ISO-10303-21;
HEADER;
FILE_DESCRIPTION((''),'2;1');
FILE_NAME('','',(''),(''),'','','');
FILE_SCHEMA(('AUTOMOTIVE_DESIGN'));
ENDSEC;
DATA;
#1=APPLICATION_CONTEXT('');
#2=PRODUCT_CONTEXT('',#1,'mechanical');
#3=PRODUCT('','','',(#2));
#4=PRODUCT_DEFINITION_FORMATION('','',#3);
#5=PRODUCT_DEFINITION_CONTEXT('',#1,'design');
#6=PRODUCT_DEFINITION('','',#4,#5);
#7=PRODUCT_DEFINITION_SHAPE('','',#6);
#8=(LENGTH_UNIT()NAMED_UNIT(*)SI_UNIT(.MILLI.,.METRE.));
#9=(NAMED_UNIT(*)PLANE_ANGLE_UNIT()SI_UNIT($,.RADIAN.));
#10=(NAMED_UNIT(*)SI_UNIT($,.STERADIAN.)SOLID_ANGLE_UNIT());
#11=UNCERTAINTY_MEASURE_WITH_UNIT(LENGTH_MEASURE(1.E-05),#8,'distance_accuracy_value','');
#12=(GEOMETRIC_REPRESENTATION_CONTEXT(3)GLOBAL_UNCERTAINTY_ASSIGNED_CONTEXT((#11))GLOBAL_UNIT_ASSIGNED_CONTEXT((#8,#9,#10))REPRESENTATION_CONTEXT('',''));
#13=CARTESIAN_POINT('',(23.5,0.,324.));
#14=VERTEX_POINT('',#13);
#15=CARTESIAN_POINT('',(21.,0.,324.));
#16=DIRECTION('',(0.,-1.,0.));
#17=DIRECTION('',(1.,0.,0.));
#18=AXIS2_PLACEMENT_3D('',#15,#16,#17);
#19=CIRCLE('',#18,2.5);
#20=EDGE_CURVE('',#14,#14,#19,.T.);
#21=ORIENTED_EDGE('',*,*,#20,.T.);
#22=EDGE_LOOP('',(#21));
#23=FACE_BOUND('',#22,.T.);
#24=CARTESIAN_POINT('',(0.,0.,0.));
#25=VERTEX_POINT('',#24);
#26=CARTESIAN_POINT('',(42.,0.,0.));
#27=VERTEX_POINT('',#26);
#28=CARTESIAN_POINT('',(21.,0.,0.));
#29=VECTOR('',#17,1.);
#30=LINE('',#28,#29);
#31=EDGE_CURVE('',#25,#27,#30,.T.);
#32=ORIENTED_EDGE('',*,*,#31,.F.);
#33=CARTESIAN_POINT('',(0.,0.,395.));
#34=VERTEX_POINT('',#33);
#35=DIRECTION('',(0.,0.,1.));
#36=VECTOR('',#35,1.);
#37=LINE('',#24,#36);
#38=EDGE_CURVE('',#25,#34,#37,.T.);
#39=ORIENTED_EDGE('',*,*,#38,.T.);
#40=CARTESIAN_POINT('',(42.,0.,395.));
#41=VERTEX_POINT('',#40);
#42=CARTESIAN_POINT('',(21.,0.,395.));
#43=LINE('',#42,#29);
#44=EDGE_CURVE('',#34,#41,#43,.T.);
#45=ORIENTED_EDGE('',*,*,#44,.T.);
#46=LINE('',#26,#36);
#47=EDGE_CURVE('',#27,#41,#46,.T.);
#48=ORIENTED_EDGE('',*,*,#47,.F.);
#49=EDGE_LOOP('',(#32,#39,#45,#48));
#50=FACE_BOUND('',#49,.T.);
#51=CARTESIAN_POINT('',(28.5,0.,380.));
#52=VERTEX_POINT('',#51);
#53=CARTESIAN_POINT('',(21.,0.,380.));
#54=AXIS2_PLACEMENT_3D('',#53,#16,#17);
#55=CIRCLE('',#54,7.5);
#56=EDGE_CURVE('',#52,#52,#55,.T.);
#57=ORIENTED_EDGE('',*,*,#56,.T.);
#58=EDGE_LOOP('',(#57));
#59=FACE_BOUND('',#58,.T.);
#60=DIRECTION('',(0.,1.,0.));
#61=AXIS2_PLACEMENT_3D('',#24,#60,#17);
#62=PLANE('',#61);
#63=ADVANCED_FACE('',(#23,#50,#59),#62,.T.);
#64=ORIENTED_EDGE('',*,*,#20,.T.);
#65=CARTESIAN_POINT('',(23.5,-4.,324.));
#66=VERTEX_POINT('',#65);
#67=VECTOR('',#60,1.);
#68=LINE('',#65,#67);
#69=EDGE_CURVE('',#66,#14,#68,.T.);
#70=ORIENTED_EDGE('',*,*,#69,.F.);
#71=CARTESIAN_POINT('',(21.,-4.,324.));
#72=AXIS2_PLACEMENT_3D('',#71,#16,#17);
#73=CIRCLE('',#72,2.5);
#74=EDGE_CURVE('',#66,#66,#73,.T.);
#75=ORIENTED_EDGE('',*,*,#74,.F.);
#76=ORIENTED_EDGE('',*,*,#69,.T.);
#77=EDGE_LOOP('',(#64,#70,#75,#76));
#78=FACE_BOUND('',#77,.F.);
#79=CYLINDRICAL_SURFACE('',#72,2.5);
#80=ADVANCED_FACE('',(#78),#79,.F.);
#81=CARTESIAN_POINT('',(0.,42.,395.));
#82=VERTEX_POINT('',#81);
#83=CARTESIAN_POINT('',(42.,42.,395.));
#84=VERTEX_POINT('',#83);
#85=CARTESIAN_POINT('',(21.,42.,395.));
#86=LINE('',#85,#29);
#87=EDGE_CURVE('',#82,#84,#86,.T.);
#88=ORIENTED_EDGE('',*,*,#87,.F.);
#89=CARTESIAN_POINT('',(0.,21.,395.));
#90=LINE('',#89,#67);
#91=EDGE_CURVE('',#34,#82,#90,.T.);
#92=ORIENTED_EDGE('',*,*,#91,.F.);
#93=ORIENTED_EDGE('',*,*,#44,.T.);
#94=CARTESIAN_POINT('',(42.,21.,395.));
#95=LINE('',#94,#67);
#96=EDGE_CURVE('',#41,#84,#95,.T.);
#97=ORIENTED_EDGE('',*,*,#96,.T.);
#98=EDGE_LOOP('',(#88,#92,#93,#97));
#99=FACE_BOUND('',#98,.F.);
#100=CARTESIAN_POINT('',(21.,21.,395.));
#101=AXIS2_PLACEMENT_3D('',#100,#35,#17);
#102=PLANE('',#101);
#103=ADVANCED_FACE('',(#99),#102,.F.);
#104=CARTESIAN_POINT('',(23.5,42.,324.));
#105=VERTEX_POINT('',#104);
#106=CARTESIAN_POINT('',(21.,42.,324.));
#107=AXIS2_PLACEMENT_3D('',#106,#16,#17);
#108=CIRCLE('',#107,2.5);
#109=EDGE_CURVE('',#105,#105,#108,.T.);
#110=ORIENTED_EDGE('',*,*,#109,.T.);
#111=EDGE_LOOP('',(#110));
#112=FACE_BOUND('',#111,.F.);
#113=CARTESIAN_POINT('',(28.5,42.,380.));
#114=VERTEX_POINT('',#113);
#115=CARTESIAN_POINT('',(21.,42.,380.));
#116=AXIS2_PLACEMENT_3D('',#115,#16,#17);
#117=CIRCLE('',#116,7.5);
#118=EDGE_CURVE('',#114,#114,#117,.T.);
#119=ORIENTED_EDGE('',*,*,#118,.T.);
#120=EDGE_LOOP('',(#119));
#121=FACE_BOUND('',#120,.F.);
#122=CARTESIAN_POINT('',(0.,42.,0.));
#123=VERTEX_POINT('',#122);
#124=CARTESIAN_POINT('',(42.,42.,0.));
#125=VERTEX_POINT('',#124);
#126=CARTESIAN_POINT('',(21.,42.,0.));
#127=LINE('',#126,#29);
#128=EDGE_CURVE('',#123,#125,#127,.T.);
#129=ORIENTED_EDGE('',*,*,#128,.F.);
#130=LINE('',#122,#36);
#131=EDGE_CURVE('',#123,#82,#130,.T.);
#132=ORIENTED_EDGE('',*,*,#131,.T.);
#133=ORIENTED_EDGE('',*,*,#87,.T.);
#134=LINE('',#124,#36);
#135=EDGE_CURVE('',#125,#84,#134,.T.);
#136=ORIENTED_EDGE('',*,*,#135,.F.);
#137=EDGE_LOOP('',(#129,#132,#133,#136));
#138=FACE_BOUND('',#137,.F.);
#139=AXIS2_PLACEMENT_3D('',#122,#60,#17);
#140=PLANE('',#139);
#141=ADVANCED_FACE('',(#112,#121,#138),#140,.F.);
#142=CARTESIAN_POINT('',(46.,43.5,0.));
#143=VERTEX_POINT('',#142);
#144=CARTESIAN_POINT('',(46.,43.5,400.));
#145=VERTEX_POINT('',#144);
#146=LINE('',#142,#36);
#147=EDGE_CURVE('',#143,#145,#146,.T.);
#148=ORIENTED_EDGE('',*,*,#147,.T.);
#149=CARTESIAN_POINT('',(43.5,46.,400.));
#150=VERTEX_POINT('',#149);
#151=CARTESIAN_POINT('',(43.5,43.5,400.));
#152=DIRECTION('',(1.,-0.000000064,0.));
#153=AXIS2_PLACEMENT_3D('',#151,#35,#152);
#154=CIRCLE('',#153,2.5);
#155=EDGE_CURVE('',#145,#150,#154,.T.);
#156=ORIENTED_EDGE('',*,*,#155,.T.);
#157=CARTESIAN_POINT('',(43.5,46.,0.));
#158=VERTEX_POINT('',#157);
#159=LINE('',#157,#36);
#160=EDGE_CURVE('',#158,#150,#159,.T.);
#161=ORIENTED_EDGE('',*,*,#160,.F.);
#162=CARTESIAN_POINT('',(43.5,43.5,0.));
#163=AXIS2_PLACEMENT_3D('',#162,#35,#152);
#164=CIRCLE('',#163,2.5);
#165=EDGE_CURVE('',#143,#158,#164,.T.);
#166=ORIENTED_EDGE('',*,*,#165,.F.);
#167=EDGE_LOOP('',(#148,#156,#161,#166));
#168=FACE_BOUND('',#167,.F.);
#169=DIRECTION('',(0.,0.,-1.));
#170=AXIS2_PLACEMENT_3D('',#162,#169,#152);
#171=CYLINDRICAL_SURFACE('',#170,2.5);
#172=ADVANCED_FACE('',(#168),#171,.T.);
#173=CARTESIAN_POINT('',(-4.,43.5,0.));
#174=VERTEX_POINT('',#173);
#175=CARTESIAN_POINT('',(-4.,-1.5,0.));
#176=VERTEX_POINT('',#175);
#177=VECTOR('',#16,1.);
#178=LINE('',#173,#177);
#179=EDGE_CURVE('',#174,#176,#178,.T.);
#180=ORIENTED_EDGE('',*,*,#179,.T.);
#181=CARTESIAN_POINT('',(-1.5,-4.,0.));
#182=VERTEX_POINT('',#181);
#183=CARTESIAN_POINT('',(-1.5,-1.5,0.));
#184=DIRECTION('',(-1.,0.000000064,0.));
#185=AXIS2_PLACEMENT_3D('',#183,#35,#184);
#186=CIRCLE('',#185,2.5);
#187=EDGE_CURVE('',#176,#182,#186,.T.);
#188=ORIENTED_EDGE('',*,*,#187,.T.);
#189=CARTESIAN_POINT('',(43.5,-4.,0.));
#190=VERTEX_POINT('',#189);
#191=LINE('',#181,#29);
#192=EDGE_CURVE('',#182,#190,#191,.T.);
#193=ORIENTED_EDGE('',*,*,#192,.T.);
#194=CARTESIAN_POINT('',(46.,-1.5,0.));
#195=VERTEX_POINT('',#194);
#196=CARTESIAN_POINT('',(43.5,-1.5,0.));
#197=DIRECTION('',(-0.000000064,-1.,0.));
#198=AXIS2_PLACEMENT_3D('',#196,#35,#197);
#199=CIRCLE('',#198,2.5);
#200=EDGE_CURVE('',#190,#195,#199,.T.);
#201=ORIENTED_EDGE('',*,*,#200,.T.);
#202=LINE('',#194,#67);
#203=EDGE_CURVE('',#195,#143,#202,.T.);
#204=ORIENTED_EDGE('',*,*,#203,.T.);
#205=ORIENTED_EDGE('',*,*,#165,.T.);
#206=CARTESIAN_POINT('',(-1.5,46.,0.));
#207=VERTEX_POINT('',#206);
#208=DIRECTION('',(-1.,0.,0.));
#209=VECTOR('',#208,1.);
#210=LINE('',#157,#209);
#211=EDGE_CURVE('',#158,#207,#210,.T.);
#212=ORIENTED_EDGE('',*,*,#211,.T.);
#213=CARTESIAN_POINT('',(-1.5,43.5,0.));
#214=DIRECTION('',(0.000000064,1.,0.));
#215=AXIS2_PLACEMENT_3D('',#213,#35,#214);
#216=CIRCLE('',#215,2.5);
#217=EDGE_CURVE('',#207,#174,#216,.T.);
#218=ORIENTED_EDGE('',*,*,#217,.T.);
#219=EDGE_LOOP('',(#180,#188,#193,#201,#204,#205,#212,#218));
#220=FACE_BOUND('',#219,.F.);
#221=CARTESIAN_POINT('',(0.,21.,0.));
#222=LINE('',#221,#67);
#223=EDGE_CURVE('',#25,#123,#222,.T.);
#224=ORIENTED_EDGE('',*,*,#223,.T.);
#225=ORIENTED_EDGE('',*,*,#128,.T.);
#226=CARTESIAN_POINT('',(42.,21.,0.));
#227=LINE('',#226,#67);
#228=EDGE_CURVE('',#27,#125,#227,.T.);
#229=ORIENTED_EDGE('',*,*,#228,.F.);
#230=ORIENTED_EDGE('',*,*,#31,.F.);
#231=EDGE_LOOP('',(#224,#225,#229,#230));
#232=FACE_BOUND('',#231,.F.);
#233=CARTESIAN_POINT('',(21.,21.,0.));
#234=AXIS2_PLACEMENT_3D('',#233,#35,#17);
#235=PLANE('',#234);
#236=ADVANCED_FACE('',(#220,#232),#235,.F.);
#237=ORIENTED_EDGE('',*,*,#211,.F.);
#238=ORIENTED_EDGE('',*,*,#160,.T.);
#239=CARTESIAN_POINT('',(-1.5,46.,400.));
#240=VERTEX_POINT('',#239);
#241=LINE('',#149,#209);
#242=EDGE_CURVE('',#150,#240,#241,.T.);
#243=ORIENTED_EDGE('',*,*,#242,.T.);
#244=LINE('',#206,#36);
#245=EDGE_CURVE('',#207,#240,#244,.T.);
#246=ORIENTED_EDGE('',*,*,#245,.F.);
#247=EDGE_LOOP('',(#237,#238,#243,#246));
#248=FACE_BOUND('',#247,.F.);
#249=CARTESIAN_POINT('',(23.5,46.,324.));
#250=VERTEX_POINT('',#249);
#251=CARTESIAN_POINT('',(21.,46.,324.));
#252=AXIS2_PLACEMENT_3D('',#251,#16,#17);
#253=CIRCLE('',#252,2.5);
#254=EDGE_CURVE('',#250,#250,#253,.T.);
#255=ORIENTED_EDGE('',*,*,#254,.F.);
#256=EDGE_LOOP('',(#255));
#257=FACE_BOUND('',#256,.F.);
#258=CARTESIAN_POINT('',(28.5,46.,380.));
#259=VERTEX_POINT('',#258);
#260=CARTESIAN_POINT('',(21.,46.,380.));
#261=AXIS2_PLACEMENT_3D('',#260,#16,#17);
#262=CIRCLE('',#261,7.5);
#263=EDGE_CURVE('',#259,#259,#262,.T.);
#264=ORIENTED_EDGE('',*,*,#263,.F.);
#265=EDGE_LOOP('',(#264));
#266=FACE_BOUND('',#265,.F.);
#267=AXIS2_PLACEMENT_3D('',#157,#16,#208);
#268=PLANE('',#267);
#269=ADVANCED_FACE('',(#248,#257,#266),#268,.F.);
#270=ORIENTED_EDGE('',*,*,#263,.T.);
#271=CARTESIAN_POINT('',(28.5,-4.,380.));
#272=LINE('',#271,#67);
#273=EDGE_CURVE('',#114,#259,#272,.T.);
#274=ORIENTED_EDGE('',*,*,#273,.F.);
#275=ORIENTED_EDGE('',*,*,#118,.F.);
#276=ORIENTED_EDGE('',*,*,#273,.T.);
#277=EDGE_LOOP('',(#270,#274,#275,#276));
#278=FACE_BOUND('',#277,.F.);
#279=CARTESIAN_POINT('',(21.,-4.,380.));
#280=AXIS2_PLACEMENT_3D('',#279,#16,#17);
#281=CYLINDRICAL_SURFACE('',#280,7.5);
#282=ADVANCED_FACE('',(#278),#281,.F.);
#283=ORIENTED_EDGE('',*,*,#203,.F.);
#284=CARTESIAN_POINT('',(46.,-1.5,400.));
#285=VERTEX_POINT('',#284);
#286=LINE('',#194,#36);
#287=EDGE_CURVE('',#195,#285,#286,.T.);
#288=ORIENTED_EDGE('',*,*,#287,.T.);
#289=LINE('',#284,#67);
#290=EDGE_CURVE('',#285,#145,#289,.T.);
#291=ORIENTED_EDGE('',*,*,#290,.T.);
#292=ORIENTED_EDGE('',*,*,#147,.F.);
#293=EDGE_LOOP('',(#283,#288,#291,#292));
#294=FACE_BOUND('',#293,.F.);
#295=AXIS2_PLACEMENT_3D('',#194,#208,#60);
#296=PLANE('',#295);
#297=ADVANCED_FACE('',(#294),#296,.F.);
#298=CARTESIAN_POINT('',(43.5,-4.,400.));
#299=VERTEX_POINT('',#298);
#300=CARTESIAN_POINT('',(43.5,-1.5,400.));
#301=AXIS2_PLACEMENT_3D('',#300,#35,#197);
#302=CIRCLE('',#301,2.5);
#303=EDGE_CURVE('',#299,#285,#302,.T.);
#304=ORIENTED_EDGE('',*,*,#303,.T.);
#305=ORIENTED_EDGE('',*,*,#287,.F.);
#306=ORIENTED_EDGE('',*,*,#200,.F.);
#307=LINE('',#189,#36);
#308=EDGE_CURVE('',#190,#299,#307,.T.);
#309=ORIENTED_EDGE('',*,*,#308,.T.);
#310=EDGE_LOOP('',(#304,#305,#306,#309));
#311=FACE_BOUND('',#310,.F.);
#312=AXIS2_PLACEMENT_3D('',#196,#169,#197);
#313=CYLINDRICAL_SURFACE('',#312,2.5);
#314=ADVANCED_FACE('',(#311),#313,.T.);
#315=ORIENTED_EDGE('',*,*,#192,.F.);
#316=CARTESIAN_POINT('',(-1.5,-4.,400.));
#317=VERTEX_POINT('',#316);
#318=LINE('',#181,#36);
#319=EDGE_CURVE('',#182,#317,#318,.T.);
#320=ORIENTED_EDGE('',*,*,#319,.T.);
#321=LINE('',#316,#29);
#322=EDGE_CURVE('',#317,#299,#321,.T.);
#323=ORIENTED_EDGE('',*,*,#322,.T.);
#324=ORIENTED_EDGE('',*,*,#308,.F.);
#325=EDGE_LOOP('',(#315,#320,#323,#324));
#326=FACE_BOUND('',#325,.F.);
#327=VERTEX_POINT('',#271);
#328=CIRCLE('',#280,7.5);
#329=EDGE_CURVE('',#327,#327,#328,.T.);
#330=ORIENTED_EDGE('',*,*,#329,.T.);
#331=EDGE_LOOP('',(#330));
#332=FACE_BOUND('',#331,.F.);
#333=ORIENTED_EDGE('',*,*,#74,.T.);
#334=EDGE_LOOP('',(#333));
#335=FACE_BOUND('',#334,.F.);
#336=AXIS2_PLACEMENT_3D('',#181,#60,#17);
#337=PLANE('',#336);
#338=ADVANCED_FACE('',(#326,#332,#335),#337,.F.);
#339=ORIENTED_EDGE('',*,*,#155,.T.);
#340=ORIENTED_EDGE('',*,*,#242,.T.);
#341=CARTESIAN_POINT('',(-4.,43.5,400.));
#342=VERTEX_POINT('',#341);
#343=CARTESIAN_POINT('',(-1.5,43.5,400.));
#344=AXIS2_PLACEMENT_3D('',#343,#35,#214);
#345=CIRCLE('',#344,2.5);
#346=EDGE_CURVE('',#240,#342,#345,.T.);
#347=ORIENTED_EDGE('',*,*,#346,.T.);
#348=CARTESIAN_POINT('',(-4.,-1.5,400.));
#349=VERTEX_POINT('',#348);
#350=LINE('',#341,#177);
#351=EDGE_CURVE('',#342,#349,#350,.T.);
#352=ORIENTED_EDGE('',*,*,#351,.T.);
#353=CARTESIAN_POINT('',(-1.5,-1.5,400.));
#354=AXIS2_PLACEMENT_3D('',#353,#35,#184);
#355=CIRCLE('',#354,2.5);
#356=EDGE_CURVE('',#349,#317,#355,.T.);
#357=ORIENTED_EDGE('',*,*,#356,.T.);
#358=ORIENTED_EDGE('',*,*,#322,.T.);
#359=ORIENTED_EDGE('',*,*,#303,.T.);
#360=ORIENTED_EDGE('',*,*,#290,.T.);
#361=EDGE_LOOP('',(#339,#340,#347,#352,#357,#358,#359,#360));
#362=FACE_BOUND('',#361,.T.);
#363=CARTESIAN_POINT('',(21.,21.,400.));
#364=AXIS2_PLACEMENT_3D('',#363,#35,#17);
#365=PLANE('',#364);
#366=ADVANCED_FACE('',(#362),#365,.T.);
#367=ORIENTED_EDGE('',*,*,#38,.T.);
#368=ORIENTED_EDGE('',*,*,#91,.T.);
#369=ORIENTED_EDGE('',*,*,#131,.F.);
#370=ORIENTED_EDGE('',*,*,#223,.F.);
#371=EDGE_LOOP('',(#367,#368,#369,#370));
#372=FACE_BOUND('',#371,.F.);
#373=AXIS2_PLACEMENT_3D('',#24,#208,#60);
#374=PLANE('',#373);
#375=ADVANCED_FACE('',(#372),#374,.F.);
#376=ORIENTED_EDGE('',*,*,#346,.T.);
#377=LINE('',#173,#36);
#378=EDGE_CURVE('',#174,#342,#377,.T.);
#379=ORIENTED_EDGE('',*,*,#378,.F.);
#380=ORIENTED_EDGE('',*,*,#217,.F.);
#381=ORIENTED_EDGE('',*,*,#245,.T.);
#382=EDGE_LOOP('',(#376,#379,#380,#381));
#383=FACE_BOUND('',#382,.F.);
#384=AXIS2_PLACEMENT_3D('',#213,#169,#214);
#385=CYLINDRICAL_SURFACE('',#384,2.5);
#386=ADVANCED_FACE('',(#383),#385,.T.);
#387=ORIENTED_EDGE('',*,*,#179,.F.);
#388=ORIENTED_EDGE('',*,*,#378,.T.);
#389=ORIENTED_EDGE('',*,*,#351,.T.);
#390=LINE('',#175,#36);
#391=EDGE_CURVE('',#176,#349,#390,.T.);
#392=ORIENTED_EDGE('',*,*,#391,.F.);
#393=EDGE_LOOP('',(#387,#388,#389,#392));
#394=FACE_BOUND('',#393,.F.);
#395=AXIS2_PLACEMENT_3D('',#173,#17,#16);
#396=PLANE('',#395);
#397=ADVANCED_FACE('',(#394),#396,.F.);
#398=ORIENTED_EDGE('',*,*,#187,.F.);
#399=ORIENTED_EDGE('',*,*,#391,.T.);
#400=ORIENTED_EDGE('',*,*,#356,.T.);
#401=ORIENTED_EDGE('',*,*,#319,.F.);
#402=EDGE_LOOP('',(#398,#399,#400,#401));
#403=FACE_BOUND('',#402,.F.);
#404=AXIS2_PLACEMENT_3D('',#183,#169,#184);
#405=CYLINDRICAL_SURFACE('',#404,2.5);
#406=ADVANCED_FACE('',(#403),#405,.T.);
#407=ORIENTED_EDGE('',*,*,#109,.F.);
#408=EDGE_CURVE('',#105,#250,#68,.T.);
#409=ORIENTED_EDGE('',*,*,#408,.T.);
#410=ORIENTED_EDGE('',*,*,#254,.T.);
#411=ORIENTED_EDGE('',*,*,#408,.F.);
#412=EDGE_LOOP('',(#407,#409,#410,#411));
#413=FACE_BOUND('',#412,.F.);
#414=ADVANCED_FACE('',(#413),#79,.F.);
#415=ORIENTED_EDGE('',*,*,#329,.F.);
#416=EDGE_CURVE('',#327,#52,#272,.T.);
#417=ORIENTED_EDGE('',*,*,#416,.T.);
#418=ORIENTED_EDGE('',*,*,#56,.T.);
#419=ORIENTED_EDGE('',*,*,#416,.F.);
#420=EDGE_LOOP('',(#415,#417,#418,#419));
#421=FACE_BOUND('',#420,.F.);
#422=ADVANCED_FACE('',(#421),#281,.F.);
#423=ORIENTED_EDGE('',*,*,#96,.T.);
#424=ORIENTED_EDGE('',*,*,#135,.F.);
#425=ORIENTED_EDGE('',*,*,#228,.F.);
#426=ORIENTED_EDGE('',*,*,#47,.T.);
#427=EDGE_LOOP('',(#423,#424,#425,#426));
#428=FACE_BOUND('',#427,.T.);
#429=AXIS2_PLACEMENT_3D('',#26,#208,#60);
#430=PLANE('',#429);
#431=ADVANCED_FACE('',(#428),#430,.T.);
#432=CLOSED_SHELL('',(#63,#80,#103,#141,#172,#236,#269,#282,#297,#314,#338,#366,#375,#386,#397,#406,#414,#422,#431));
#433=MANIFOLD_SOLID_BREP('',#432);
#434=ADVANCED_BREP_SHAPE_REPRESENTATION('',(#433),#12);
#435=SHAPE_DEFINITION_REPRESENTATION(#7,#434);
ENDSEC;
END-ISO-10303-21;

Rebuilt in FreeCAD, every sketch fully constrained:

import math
import FreeCAD as App
import Part
import Sketcher
from FreeCAD import Vector
Q = App.Units.Quantity

doc = App.newDocument("Part")
body = doc.addObject("PartDesign::Body", "Body")

# Sketch on XY plane
sketch1 = body.newObject("Sketcher::SketchObject", "Sketch")
sketch1.AttachmentSupport = (doc.getObject("XY_Plane"), [""])
sketch1.MapMode = "FlatFace"
sketch1.addGeometry([
    Part.LineSegment(Vector(43.5, 46, 0), Vector(-1.5, 46, 0)),  # 0
    Part.ArcOfCircle(Part.Circle(Vector(-1.5, 43.5, 0), Vector(0, 0, 1), 2.5), math.radians(90), math.radians(180)),  # 1
    Part.LineSegment(Vector(-4, 43.5, 0), Vector(-4, -1.5, 0)),  # 2
    Part.ArcOfCircle(Part.Circle(Vector(-1.5, -1.5, 0), Vector(0, 0, 1), 2.5), math.radians(180), math.radians(270)),  # 3
    Part.LineSegment(Vector(-1.5, -4, 0), Vector(43.5, -4, 0)),  # 4
    Part.ArcOfCircle(Part.Circle(Vector(43.5, -1.5, 0), Vector(0, 0, 1), 2.5), math.radians(-90), math.radians(0)),  # 5
    Part.LineSegment(Vector(46, -1.5, 0), Vector(46, 43.5, 0)),  # 6
    Part.ArcOfCircle(Part.Circle(Vector(43.5, 43.5, 0), Vector(0, 0, 1), 2.5), math.radians(0), math.radians(90)),  # 7
    Part.LineSegment(Vector(42, 0, 0), Vector(0, 0, 0)),  # 8
    Part.LineSegment(Vector(0, 0, 0), Vector(0, 42, 0)),  # 9
    Part.LineSegment(Vector(0, 42, 0), Vector(42, 42, 0)),  # 10
    Part.LineSegment(Vector(42, 42, 0), Vector(42, 0, 0)),  # 11
], False)
sketch1.addConstraint([
    Sketcher.Constraint("Tangent", 0, 2, 1, 1),
    Sketcher.Constraint("Tangent", 1, 2, 2, 1),
    Sketcher.Constraint("Tangent", 2, 2, 3, 1),
    Sketcher.Constraint("Tangent", 3, 2, 4, 1),
    Sketcher.Constraint("Tangent", 4, 2, 5, 1),
    Sketcher.Constraint("Tangent", 5, 2, 6, 1),
    Sketcher.Constraint("Tangent", 6, 2, 7, 1),
    Sketcher.Constraint("Tangent", 7, 2, 0, 1),
    Sketcher.Constraint("Coincident", 8, 2, 9, 1),
    Sketcher.Constraint("Coincident", 9, 2, 10, 1),
    Sketcher.Constraint("Coincident", 10, 2, 11, 1),
    Sketcher.Constraint("Coincident", 11, 2, 8, 1),
    Sketcher.Constraint("Horizontal", 0),
    Sketcher.Constraint("Vertical", 2),
    Sketcher.Constraint("Horizontal", 4),
    Sketcher.Constraint("Vertical", 6),
    Sketcher.Constraint("Horizontal", 8),
    Sketcher.Constraint("Vertical", 9),
    Sketcher.Constraint("Horizontal", 10),
    Sketcher.Constraint("Vertical", 11),
    Sketcher.Constraint("Coincident", 8, 2, -1, 1),
    Sketcher.Constraint("Equal", 1, 3),
    Sketcher.Constraint("Equal", 3, 5),
    Sketcher.Constraint("Equal", 5, 7),
    Sketcher.Constraint("Equal", 4, 2),
    Sketcher.Constraint("Equal", 10, 9),
    Sketcher.Constraint("Radius", 1, Q("2.5 mm")),
    Sketcher.Constraint("DistanceX", 0, 2, 0, 1, Q("45 mm")),
    Sketcher.Constraint("DistanceX", 8, 2, 8, 1, Q("42 mm")),
    Sketcher.Constraint("DistanceY", -1, 1, 0, 2, Q("46 mm")),
    Sketcher.Constraint("DistanceX", 1, 2, -1, 1, Q("4 mm")),
])
pad1 = body.newObject("PartDesign::Pad", "Pad")
pad1.Profile = sketch1
pad1.Length = 400

# Sketch on XZ plane
sketch2 = body.newObject("Sketcher::SketchObject", "Sketch001")
sketch2.AttachmentSupport = (doc.getObject("XZ_Plane"), [""])
sketch2.MapMode = "FlatFace"
sketch2.AttachmentOffset = App.Placement(Vector(0, 0, 4), App.Rotation())
sketch2.addGeometry(Part.Circle(Vector(21, 380, 0), Vector(0, 0, 1), 8), False)
sketch2.addConstraint([
    Sketcher.Constraint("Diameter", 0, Q("15 mm")),
    Sketcher.Constraint("DistanceX", -1, 1, 0, 3, Q("21 mm")),
    Sketcher.Constraint("DistanceY", -1, 1, 0, 3, Q("380 mm")),
])
pocket1 = body.newObject("PartDesign::Pocket", "Pocket")
pocket1.Profile = sketch2
pocket1.Length = 50

# Sketch on XY plane
sketch3 = body.newObject("Sketcher::SketchObject", "Sketch002")
sketch3.AttachmentSupport = (doc.getObject("XY_Plane"), [""])
sketch3.MapMode = "FlatFace"
sketch3.AttachmentOffset = App.Placement(Vector(0, 0, 400), App.Rotation())
sketch3.addGeometry([
    Part.LineSegment(Vector(0, 42, 0), Vector(0, 0, 0)),
    Part.LineSegment(Vector(0, 0, 0), Vector(42, 0, 0)),
    Part.LineSegment(Vector(42, 0, 0), Vector(42, 42, 0)),
    Part.LineSegment(Vector(42, 42, 0), Vector(0, 42, 0)),
], False)
sketch3.addConstraint([
    Sketcher.Constraint("Coincident", 0, 2, 1, 1),
    Sketcher.Constraint("Coincident", 1, 2, 2, 1),
    Sketcher.Constraint("Coincident", 2, 2, 3, 1),
    Sketcher.Constraint("Coincident", 3, 2, 0, 1),
    Sketcher.Constraint("Vertical", 0),
    Sketcher.Constraint("Horizontal", 1),
    Sketcher.Constraint("Vertical", 2),
    Sketcher.Constraint("Horizontal", 3),
    Sketcher.Constraint("Coincident", 0, 2, -1, 1),
    Sketcher.Constraint("Equal", 3, 0),
    Sketcher.Constraint("DistanceX", 1, 1, 1, 2, Q("42 mm")),
])
pad2 = body.newObject("PartDesign::Pad", "Pad001")
pad2.Profile = sketch3
pad2.Length = 5
pad2.Reversed = True

# Sketch on XZ plane
sketch4 = body.newObject("Sketcher::SketchObject", "Sketch003")
sketch4.AttachmentSupport = (doc.getObject("XZ_Plane"), [""])
sketch4.MapMode = "FlatFace"
sketch4.AttachmentOffset = App.Placement(Vector(0, 0, 4), App.Rotation())
sketch4.addGeometry(Part.Circle(Vector(21, 324, 0), Vector(0, 0, 1), 2.5), False)
sketch4.addConstraint([
    Sketcher.Constraint("Diameter", 0, Q("5 mm")),
    Sketcher.Constraint("DistanceX", -1, 1, 0, 3, Q("21 mm")),
    Sketcher.Constraint("DistanceY", -1, 1, 0, 3, Q("324 mm")),
])
pocket2 = body.newObject("PartDesign::Pocket", "Pocket001")
pocket2.Profile = sketch4
pocket2.Length = 50

doc.recompute()
